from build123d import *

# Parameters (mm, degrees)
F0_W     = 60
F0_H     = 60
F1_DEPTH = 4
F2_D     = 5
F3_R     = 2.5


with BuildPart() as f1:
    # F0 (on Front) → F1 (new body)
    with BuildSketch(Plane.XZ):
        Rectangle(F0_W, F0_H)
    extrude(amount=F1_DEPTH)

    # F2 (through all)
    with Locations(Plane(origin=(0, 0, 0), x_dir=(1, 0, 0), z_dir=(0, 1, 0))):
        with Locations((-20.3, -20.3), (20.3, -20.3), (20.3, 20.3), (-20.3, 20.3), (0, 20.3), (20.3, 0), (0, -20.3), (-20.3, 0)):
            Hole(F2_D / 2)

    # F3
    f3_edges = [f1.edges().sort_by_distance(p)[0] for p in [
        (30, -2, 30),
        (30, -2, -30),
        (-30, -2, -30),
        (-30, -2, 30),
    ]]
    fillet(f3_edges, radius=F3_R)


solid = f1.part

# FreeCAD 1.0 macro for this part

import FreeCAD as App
import Part
import Sketcher
from FreeCAD import Vector


def edges_at(feature, points):
    """Names of the edges that pass closest to the given points."""
    edges = feature.Shape.Edges
    near = lambda p: min(range(len(edges)), key=lambda i: edges[i].distToShape(Part.Vertex(*p))[0])
    return sorted({f"Edge{near(p) + 1}" for p in points})

doc = App.newDocument("Part")
body = doc.addObject("PartDesign::Body", "Body")

sketch1 = body.newObject("Sketcher::SketchObject", "Sketch")
sketch1.AttachmentSupport = (doc.getObject("XZ_Plane"), [""])
sketch1.MapMode = "FlatFace"
sketch1.addGeometry(Part.LineSegment(Vector(-30, 30, 0), Vector(-30, -30, 0)), False)
sketch1.addGeometry(Part.LineSegment(Vector(-30, -30, 0), Vector(30, -30, 0)), False)
sketch1.addGeometry(Part.LineSegment(Vector(30, -30, 0), Vector(30, 30, 0)), False)
sketch1.addGeometry(Part.LineSegment(Vector(30, 30, 0), Vector(-30, 30, 0)), False)
sketch1.addConstraint(Sketcher.Constraint("Coincident", 0, 2, 1, 1))
sketch1.addConstraint(Sketcher.Constraint("Coincident", 1, 2, 2, 1))
sketch1.addConstraint(Sketcher.Constraint("Coincident", 2, 2, 3, 1))
sketch1.addConstraint(Sketcher.Constraint("Coincident", 3, 2, 0, 1))
sketch1.addConstraint(Sketcher.Constraint("Vertical", 0))
sketch1.addConstraint(Sketcher.Constraint("Horizontal", 1))
sketch1.addConstraint(Sketcher.Constraint("Vertical", 2))
sketch1.addConstraint(Sketcher.Constraint("Horizontal", 3))
sketch1.addConstraint(Sketcher.Constraint("Symmetric", 0, 2, 2, 2, -1, 1))
sketch1.addConstraint(Sketcher.Constraint("Equal", 3, 0))
sketch1.addConstraint(Sketcher.Constraint("DistanceX", 1, 1, 1, 2, 60.0))
pad1 = body.newObject("PartDesign::Pad", "Pad")
pad1.Profile = sketch1
pad1.Length = 4

sketch2 = body.newObject("Sketcher::SketchObject", "Sketch001")
sketch2.AttachmentSupport = (doc.getObject("XZ_Plane"), [""])
sketch2.MapMode = "FlatFace"
sketch2.addGeometry(Part.Circle(Vector(-20.3, 20.3, 0), Vector(0, 0, 1), 2.5), False)
sketch2.addGeometry(Part.Circle(Vector(20.3, 20.3, 0), Vector(0, 0, 1), 2.5), False)
sketch2.addGeometry(Part.Circle(Vector(20.3, -20.3, 0), Vector(0, 0, 1), 2.5), False)
sketch2.addGeometry(Part.Circle(Vector(-20.3, -20.3, 0), Vector(0, 0, 1), 2.5), False)
sketch2.addGeometry(Part.Circle(Vector(0, -20.3, 0), Vector(0, 0, 1), 2.5), False)
sketch2.addGeometry(Part.Circle(Vector(20.3, 0, 0), Vector(0, 0, 1), 2.5), False)
sketch2.addGeometry(Part.Circle(Vector(0, 20.3, 0), Vector(0, 0, 1), 2.5), False)
sketch2.addGeometry(Part.Circle(Vector(-20.3, 0, 0), Vector(0, 0, 1), 2.5), False)
sketch2.addConstraint(Sketcher.Constraint("Equal", 0, 1))
sketch2.addConstraint(Sketcher.Constraint("Equal", 1, 2))
sketch2.addConstraint(Sketcher.Constraint("Equal", 2, 3))
sketch2.addConstraint(Sketcher.Constraint("Equal", 3, 4))
sketch2.addConstraint(Sketcher.Constraint("Equal", 4, 5))
sketch2.addConstraint(Sketcher.Constraint("Equal", 5, 6))
sketch2.addConstraint(Sketcher.Constraint("Equal", 6, 7))
sketch2.addConstraint(Sketcher.Constraint("Symmetric", 0, 3, 2, 3, -1, 1))
sketch2.addConstraint(Sketcher.Constraint("Symmetric", 1, 3, 3, 3, -1, 1))
sketch2.addConstraint(Sketcher.Constraint("Symmetric", 4, 3, 6, 3, -1, 1))
sketch2.addConstraint(Sketcher.Constraint("Symmetric", 5, 3, 7, 3, -1, 1))
sketch2.addConstraint(Sketcher.Constraint("Symmetric", 0, 3, 1, 3, -2))
sketch2.addConstraint(Sketcher.Constraint("PointOnObject", 4, 3, -2))
sketch2.addConstraint(Sketcher.Constraint("PointOnObject", 5, 3, -1))
sketch2.addConstraint(Sketcher.Constraint("Horizontal", 3, 3, 4, 3))
sketch2.addConstraint(Sketcher.Constraint("Vertical", 2, 3, 5, 3))
sketch2.addConstraint(Sketcher.Constraint("Diameter", 0, 5.0))
sketch2.addConstraint(Sketcher.Constraint("DistanceX", 0, 3, -1, 1, 20.3))
sketch2.addConstraint(Sketcher.Constraint("DistanceY", -1, 1, 0, 3, 20.3))
doc.recompute()
hole = body.newObject("PartDesign::Hole", "Hole")
hole.Profile = sketch2
hole.ThreadType = "None"
hole.Diameter = 5
hole.DepthType = "ThroughAll"
hole.Reversed = True
doc.recompute()

fillet = body.newObject("PartDesign::Fillet", "Fillet")
fillet.Base = (hole, edges_at(hole, [
    (30, -2, 30),
    (30, -2, -30),
    (-30, -2, -30),
    (-30, -2, 30),
]))
fillet.Radius = 2.5

doc.recompute()
